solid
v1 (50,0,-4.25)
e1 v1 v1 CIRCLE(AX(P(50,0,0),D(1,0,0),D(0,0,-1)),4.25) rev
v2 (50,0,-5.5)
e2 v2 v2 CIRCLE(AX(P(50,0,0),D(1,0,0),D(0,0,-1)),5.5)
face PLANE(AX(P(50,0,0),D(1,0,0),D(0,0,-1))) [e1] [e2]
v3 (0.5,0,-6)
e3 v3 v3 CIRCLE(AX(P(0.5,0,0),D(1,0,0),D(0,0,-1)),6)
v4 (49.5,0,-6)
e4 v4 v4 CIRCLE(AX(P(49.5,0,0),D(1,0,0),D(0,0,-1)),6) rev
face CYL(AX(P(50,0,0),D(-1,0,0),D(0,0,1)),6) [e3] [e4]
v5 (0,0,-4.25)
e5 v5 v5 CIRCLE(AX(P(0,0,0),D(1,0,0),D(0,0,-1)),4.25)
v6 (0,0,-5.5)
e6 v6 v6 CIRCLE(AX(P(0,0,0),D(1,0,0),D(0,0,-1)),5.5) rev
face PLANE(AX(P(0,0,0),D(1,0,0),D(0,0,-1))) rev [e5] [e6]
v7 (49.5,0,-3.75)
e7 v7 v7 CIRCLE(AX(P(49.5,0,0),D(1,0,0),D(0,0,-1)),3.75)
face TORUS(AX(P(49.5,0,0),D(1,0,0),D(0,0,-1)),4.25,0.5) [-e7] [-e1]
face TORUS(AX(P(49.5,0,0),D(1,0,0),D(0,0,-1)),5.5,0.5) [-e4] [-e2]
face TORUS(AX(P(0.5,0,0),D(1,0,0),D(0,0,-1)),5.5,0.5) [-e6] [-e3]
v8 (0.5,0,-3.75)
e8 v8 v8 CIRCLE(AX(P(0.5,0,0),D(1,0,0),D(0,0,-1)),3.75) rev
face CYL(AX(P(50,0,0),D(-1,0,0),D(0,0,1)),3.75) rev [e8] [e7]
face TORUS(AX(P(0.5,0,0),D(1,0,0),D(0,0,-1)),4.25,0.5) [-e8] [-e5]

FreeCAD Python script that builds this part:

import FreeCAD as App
import Part
import Sketcher

V = App.Vector


def edges_at(feature, points):
    """Names of the edges that pass closest to the given points."""
    edges = feature.Shape.Edges
    near = lambda p: min(range(len(edges)), key=lambda i: edges[i].distToShape(Part.Vertex(*p))[0])
    return sorted({f"Edge{near(p) + 1}" for p in points})

doc = App.newDocument("Part")
body = doc.addObject("PartDesign::Body", "Body")

# Sketch on YZ plane
sketch1 = body.newObject("Sketcher::SketchObject", "Sketch")
sketch1.AttachmentSupport = (doc.getObject("YZ_Plane"), [""])
sketch1.MapMode = "FlatFace"
sketch1.addGeometry([
    Part.Circle(V(0, 0, 0), V(0, 0, 1), 6),
    Part.Circle(V(0, 0, 0), V(0, 0, 1), 3.8),
], False)
sketch1.addConstraint([
    Sketcher.Constraint("Coincident", 0, 3, -1, 1),
    Sketcher.Constraint("Coincident", 1, 3, -1, 1),
    Sketcher.Constraint("Diameter", 0, 12.0),
    Sketcher.Constraint("Diameter", 1, 7.5),
])
pad1 = body.newObject("PartDesign::Pad", "Pad")
pad1.Profile = sketch1
pad1.Length = 50
doc.recompute()

fillet = body.newObject("PartDesign::Fillet", "Fillet")
fillet.Base = (pad1, edges_at(pad1, [
    (0, 0, 6),
    (50, 0, 6),
    (0, 0, 3.75),
    (50, 0, 3.75),
]))
fillet.Radius = 0.5

doc.recompute()
